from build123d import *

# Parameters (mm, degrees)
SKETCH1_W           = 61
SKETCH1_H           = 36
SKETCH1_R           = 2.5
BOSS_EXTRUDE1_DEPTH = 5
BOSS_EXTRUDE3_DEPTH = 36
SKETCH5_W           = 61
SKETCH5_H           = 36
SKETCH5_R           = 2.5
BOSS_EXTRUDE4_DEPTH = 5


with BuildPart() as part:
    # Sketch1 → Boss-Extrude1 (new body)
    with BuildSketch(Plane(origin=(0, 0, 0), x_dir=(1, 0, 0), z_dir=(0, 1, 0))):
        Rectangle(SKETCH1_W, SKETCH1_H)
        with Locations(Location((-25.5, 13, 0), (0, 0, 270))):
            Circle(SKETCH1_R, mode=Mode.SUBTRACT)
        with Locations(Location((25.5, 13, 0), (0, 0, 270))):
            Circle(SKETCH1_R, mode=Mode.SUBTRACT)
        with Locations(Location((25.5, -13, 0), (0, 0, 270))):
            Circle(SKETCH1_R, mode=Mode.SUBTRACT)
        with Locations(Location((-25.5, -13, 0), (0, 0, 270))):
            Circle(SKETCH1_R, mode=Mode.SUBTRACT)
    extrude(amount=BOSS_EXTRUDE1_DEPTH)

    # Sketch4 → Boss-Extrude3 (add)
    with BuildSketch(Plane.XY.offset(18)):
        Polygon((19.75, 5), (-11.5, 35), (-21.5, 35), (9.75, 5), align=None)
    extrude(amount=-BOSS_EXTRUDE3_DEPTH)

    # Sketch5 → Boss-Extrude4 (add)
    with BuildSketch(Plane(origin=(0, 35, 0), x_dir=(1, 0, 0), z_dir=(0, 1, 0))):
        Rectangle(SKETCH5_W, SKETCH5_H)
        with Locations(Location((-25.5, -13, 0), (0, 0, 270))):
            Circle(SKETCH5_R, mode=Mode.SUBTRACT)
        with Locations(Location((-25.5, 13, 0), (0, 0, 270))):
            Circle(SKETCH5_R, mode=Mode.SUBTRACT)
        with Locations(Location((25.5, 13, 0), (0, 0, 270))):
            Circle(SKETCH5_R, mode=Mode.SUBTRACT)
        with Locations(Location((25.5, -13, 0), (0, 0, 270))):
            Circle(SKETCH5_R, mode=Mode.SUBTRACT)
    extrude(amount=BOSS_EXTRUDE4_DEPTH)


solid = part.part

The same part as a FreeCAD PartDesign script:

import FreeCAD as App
import Part
import Sketcher
from FreeCAD import Vector

doc = App.newDocument("Part")
body = doc.addObject("PartDesign::Body", "Body")

sketch1 = body.newObject("Sketcher::SketchObject", "Sketch")
sketch1.AttachmentSupport = (doc.getObject("XZ_Plane"), [""])
sketch1.MapMode = "FlatFace"
sketch1.addGeometry(Part.LineSegment(Vector(-30.5, -18, 0), Vector(-30.5, 18, 0)), False)
sketch1.addGeometry(Part.LineSegment(Vector(-30.5, 18, 0), Vector(30.5, 18, 0)), False)
sketch1.addGeometry(Part.LineSegment(Vector(30.5, 18, 0), Vector(30.5, -18, 0)), False)
sketch1.addGeometry(Part.LineSegment(Vector(30.5, -18, 0), Vector(-30.5, -18, 0)), False)
sketch1.addGeometry(Part.Circle(Vector(-25.5, 13, 0), Vector(0, 0, 1), 2.5), False)
sketch1.addGeometry(Part.Circle(Vector(25.5, 13, 0), Vector(0, 0, 1), 2.5), False)
sketch1.addGeometry(Part.Circle(Vector(-25.5, -13, 0), Vector(0, 0, 1), 2.5), False)
sketch1.addGeometry(Part.Circle(Vector(25.5, -13, 0), Vector(0, 0, 1), 2.5), False)
sketch1.addConstraint(Sketcher.Constraint("Coincident", 0, 2, 1, 1))
sketch1.addConstraint(Sketcher.Constraint("Coincident", 1, 2, 2, 1))
sketch1.addConstraint(Sketcher.Constraint("Coincident", 2, 2, 3, 1))
sketch1.addConstraint(Sketcher.Constraint("Coincident", 3, 2, 0, 1))
sketch1.addConstraint(Sketcher.Constraint("Vertical", 0))
sketch1.addConstraint(Sketcher.Constraint("Horizontal", 1))
sketch1.addConstraint(Sketcher.Constraint("Vertical", 2))
sketch1.addConstraint(Sketcher.Constraint("Horizontal", 3))
sketch1.addConstraint(Sketcher.Constraint("Equal", 4, 5))
sketch1.addConstraint(Sketcher.Constraint("Equal", 5, 6))
sketch1.addConstraint(Sketcher.Constraint("Equal", 6, 7))
sketch1.addConstraint(Sketcher.Constraint("Symmetric", 5, 3, 6, 3, -1, 1))
sketch1.addConstraint(Sketcher.Constraint("Symmetric", 4, 3, 7, 3, -1, 1))
sketch1.addConstraint(Sketcher.Constraint("Symmetric", 0, 2, 2, 2, -1, 1))
sketch1.addConstraint(Sketcher.Constraint("Symmetric", 4, 3, 5, 3, -2))
sketch1.addConstraint(Sketcher.Constraint("Diameter", 4, 5.0))
sketch1.addConstraint(Sketcher.Constraint("DistanceX", 1, 1, 1, 2, 61.0))
sketch1.addConstraint(Sketcher.Constraint("DistanceY", 0, 1, 0, 2, 36.0))
sketch1.addConstraint(Sketcher.Constraint("DistanceY", -1, 1, 4, 3, 13.0))
sketch1.addConstraint(Sketcher.Constraint("DistanceX", 4, 3, 5, 3, 51.0))
pad1 = body.newObject("PartDesign::Pad", "Pad")
pad1.Profile = sketch1
pad1.Length = 5
pad1.Reversed = True

sketch2 = body.newObject("Sketcher::SketchObject", "Sketch001")
sketch2.AttachmentSupport = (doc.getObject("XY_Plane"), [""])
sketch2.MapMode = "FlatFace"
sketch2.AttachmentOffset = App.Placement(Vector(0, 0, 18), App.Rotation())
sketch2.addGeometry(Part.LineSegment(Vector(20, 5, 0), Vector(-12, 35, 0)), False)
sketch2.addGeometry(Part.LineSegment(Vector(-12, 35, 0), Vector(-22, 35, 0)), False)
sketch2.addGeometry(Part.LineSegment(Vector(-22, 35, 0), Vector(10, 5, 0)), False)
sketch2.addGeometry(Part.LineSegment(Vector(10, 5, 0), Vector(20, 5, 0)), False)
sketch2.addConstraint(Sketcher.Constraint("Coincident", 0, 2, 1, 1))
sketch2.addConstraint(Sketcher.Constraint("Coincident", 1, 2, 2, 1))
sketch2.addConstraint(Sketcher.Constraint("Coincident", 2, 2, 3, 1))
sketch2.addConstraint(Sketcher.Constraint("Coincident", 3, 2, 0, 1))
sketch2.addConstraint(Sketcher.Constraint("Horizontal", 1))
sketch2.addConstraint(Sketcher.Constraint("Horizontal", 3))
sketch2.addConstraint(Sketcher.Constraint("Parallel", 0, 2))
sketch2.addConstraint(Sketcher.Constraint("DistanceX", 1, 2, 1, 1, 10.0))
sketch2.addConstraint(Sketcher.Constraint("DistanceY", -1, 1, 0, 2, 35.0))
sketch2.addConstraint(Sketcher.Constraint("DistanceY", -1, 1, 2, 2, 5.0))
sketch2.addConstraint(Sketcher.Constraint("DistanceX", 0, 2, -1, 1, 11.5))
sketch2.addConstraint(Sketcher.Constraint("DistanceX", -1, 1, 2, 2, 9.75))
pad2 = body.newObject("PartDesign::Pad", "Pad001")
pad2.Profile = sketch2
pad2.Length = 36
pad2.Reversed = True

sketch3 = body.newObject("Sketcher::SketchObject", "Sketch002")
sketch3.AttachmentSupport = (doc.getObject("XZ_Plane"), [""])
sketch3.MapMode = "FlatFace"
sketch3.AttachmentOffset = App.Placement(Vector(0, 0, -35), App.Rotation())
sketch3.addGeometry(Part.LineSegment(Vector(-30.5, -18, 0), Vector(-30.5, 18, 0)), False)
sketch3.addGeometry(Part.LineSegment(Vector(-30.5, 18, 0), Vector(30.5, 18, 0)), False)
sketch3.addGeometry(Part.LineSegment(Vector(30.5, 18, 0), Vector(30.5, -18, 0)), False)
sketch3.addGeometry(Part.LineSegment(Vector(30.5, -18, 0), Vector(-30.5, -18, 0)), False)
sketch3.addGeometry(Part.Circle(Vector(-25.5, 13, 0), Vector(0, 0, 1), 2.5), False)
sketch3.addGeometry(Part.Circle(Vector(25.5, 13, 0), Vector(0, 0, 1), 2.5), False)
sketch3.addGeometry(Part.Circle(Vector(-25.5, -13, 0), Vector(0, 0, 1), 2.5), False)
sketch3.addGeometry(Part.Circle(Vector(25.5, -13, 0), Vector(0, 0, 1), 2.5), False)
sketch3.addConstraint(Sketcher.Constraint("Coincident", 0, 2, 1, 1))
sketch3.addConstraint(Sketcher.Constraint("Coincident", 1, 2, 2, 1))
sketch3.addConstraint(Sketcher.Constraint("Coincident", 2, 2, 3, 1))
sketch3.addConstraint(Sketcher.Constraint("Coincident", 3, 2, 0, 1))
sketch3.addConstraint(Sketcher.Constraint("Vertical", 0))
sketch3.addConstraint(Sketcher.Constraint("Horizontal", 1))
sketch3.addConstraint(Sketcher.Constraint("Vertical", 2))
sketch3.addConstraint(Sketcher.Constraint("Horizontal", 3))
sketch3.addConstraint(Sketcher.Constraint("Equal", 4, 5))
sketch3.addConstraint(Sketcher.Constraint("Equal", 5, 6))
sketch3.addConstraint(Sketcher.Constraint("Equal", 6, 7))
sketch3.addConstraint(Sketcher.Constraint("Symmetric", 5, 3, 6, 3, -1, 1))
sketch3.addConstraint(Sketcher.Constraint("Symmetric", 4, 3, 7, 3, -1, 1))
sketch3.addConstraint(Sketcher.Constraint("Symmetric", 0, 2, 2, 2, -1, 1))
sketch3.addConstraint(Sketcher.Constraint("Symmetric", 4, 3, 5, 3, -2))
sketch3.addConstraint(Sketcher.Constraint("Diameter", 4, 5.0))
sketch3.addConstraint(Sketcher.Constraint("DistanceX", 1, 1, 1, 2, 61.0))
sketch3.addConstraint(Sketcher.Constraint("DistanceY", 0, 1, 0, 2, 36.0))
sketch3.addConstraint(Sketcher.Constraint("DistanceY", -1, 1, 4, 3, 13.0))
sketch3.addConstraint(Sketcher.Constraint("DistanceX", 4, 3, 5, 3, 51.0))
pad3 = body.newObject("PartDesign::Pad", "Pad002")
pad3.Profile = sketch3
pad3.Length = 5
pad3.Reversed = True

doc.recompute()
